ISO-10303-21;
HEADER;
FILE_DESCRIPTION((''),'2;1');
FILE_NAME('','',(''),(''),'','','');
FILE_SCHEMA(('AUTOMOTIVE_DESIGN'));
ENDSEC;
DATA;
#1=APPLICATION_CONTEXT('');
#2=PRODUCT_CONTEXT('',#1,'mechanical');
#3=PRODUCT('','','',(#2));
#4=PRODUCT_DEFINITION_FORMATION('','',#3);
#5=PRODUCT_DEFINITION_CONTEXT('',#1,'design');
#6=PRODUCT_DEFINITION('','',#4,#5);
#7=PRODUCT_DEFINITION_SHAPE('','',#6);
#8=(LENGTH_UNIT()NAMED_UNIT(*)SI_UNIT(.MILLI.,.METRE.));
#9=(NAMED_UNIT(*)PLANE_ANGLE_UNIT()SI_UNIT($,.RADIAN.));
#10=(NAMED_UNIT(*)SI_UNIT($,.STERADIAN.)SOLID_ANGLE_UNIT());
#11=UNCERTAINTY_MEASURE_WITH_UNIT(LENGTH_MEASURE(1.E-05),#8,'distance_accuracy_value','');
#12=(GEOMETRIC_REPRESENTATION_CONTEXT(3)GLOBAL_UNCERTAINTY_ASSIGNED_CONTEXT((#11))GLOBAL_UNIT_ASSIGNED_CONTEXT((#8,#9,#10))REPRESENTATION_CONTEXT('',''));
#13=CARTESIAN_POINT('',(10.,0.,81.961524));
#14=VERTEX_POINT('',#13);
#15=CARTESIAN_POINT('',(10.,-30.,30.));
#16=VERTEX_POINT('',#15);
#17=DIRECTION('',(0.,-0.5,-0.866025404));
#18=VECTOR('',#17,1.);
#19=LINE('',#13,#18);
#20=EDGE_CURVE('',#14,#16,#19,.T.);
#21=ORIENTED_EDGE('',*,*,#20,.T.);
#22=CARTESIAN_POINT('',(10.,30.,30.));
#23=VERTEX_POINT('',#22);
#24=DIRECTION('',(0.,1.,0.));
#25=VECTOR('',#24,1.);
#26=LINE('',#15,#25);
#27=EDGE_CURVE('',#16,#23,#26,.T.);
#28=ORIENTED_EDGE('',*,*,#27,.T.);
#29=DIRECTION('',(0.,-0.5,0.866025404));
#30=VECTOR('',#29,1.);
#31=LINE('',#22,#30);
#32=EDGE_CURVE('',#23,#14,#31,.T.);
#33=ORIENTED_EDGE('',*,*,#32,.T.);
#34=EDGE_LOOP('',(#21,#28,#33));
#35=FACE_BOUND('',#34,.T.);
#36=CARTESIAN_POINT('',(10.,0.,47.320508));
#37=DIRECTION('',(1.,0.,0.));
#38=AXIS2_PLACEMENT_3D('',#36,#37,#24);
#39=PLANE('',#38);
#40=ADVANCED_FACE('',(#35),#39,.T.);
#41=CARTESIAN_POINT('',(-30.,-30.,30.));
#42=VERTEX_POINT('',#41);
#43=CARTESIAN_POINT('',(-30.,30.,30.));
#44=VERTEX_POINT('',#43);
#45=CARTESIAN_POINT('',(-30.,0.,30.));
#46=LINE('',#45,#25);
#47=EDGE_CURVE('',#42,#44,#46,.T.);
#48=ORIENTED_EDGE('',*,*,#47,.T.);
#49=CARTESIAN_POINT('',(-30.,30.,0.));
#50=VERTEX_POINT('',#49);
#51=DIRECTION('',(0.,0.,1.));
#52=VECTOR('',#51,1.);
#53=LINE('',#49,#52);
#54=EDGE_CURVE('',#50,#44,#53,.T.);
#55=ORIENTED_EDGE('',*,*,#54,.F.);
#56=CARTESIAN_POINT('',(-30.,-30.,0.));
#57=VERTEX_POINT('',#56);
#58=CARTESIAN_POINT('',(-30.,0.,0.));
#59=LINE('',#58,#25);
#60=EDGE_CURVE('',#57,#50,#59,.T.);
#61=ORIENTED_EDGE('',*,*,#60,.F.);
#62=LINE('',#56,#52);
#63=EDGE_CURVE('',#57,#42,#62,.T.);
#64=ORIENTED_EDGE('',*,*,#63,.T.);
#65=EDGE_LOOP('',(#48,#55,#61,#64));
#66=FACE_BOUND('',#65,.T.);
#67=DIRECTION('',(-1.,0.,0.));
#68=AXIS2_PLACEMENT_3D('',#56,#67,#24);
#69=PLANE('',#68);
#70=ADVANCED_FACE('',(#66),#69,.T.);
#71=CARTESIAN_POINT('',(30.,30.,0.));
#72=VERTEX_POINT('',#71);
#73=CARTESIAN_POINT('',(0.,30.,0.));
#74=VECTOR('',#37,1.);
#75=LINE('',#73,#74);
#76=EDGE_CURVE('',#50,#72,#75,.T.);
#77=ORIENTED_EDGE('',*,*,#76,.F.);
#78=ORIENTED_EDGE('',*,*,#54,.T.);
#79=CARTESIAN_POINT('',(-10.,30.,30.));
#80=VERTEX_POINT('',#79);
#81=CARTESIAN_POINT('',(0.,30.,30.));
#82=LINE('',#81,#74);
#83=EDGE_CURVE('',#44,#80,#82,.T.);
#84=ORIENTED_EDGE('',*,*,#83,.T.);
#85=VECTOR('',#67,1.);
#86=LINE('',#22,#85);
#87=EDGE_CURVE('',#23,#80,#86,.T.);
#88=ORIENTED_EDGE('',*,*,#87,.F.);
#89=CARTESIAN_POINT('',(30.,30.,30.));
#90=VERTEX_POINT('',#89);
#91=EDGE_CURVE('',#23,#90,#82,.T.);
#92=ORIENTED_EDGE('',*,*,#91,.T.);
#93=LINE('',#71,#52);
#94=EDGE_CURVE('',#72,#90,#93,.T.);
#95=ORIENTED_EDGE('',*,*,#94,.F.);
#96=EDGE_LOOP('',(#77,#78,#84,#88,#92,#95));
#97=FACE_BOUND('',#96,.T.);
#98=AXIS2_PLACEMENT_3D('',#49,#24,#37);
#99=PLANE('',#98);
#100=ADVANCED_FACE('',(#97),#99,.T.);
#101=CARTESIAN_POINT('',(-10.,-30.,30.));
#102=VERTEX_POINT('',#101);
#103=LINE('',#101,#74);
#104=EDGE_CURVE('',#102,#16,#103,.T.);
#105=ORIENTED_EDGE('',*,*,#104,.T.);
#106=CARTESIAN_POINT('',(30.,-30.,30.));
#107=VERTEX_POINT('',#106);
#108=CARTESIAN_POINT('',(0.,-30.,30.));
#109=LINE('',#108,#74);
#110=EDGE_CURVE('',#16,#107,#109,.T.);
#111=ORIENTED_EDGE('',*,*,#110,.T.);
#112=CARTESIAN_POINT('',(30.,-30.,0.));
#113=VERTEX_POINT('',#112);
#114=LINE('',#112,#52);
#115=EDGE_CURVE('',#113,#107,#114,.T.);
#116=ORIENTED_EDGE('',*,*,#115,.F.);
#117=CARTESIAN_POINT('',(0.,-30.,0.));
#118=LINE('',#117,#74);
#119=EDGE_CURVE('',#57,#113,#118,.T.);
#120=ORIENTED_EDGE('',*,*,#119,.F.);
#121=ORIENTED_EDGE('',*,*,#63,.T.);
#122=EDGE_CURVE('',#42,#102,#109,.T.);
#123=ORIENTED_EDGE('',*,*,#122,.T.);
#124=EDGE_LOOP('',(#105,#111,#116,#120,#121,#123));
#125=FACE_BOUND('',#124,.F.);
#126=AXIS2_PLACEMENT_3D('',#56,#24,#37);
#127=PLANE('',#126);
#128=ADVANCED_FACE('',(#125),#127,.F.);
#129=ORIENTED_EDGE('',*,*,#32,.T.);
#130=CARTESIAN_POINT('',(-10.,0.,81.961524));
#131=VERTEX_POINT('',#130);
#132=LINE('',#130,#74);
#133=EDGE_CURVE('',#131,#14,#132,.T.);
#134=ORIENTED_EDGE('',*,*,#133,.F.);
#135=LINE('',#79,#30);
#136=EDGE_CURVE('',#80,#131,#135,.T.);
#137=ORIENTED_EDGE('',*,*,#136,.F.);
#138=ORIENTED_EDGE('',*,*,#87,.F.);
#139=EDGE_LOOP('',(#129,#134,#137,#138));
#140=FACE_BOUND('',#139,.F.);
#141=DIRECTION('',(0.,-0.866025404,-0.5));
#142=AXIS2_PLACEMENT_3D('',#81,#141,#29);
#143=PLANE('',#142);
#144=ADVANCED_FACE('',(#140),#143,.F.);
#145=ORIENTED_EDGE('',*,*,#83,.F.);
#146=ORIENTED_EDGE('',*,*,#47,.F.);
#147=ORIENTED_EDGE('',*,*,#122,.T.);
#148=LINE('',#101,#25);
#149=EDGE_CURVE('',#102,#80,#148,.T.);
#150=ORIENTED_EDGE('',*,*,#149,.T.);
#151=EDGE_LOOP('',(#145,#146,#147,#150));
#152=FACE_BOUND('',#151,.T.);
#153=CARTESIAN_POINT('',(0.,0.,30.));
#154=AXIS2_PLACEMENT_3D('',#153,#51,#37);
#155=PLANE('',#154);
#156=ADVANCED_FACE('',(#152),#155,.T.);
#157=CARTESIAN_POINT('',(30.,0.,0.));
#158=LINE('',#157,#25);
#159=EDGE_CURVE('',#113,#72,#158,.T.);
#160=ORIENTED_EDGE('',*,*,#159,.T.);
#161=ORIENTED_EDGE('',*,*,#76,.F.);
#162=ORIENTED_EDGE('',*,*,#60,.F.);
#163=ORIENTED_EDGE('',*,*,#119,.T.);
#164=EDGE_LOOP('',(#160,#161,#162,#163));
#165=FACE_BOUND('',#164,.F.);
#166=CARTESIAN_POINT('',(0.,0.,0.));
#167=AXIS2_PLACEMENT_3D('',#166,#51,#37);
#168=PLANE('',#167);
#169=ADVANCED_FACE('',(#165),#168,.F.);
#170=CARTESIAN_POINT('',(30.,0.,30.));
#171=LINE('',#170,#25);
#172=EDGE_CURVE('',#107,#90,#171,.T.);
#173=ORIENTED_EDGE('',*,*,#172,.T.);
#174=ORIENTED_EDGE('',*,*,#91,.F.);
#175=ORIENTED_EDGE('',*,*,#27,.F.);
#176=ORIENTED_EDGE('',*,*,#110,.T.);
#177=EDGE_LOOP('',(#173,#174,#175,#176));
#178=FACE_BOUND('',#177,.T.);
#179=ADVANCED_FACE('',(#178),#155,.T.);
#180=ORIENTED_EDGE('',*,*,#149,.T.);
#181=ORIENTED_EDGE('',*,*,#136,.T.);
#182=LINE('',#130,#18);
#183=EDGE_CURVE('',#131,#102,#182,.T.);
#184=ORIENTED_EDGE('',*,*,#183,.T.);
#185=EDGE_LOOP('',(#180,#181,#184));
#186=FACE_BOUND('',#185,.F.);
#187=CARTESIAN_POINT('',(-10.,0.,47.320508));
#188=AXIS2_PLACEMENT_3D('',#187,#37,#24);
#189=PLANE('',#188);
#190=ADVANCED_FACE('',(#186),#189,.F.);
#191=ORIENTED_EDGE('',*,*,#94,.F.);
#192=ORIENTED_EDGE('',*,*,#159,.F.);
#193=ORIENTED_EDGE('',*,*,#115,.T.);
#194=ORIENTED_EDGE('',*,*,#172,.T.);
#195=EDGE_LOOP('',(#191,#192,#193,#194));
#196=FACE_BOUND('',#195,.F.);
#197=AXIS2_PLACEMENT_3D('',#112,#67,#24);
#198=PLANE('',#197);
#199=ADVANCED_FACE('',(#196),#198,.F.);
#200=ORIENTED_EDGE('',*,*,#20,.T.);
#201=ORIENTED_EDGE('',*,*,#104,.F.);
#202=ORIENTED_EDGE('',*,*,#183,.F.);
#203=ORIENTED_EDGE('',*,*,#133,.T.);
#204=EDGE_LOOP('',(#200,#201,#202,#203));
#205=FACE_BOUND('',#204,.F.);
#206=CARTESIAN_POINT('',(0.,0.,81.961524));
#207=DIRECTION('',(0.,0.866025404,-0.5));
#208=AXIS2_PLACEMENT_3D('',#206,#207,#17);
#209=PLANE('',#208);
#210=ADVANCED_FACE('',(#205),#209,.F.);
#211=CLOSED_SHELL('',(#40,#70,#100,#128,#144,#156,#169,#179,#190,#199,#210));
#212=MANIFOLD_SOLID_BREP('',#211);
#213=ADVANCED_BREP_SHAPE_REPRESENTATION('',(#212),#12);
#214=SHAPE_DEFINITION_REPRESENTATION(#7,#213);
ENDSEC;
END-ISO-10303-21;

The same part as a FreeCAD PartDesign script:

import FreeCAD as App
import Part
import Sketcher
Q = App.Units.Quantity


def add_polygon(sketch, points):
    """Adds a closed chain of lines whose ends are joined by coincident constraints."""
    first, n = sketch.GeometryCount, len(points)
    for a, b in zip(points, points[1:] + points[:1]):
        sketch.addGeometry(Part.LineSegment(App.Vector(*a, 0), App.Vector(*b, 0)), False)
    for i in range(n):
        sketch.addConstraint(Sketcher.Constraint("Coincident", first + i, 2, first + (i + 1) % n, 1))

doc = App.newDocument("Part")
body = doc.addObject("PartDesign::Body", "Body")

sketch1 = doc.addObject("Sketcher::SketchObject", "Sketch")
body.addObject(sketch1)
sketch1.AttachmentSupport = (doc.XY_Plane, [""])
sketch1.MapMode = "FlatFace"
add_polygon(sketch1, [(-30, 30), (-30, -30), (30, -30), (30, 30)])
sketch1.addConstraint(Sketcher.Constraint("Vertical", 0))
sketch1.addConstraint(Sketcher.Constraint("Horizontal", 1))
sketch1.addConstraint(Sketcher.Constraint("Vertical", 2))
sketch1.addConstraint(Sketcher.Constraint("Horizontal", 3))
sketch1.addConstraint(Sketcher.Constraint("Symmetric", 0, 2, 2, 2, -1, 1))
sketch1.addConstraint(Sketcher.Constraint("Equal", 3, 0))
sketch1.addConstraint(Sketcher.Constraint("DistanceX", 1, 1, 1, 2, 60.0))
pad1 = doc.addObject("PartDesign::Pad", "Pad")
body.addObject(pad1)
pad1.Profile = sketch1
pad1.Length = 30

sketch2 = doc.addObject("Sketcher::SketchObject", "Sketch001")
body.addObject(sketch2)
sketch2.AttachmentSupport = (doc.YZ_Plane, [""])
sketch2.MapMode = "FlatFace"
add_polygon(sketch2, [(-30, 30), (30, 30), (0, 81.961524)])
sketch2.addConstraint(Sketcher.Constraint("Horizontal", 0))
sketch2.addConstraint(Sketcher.Constraint("PointOnObject", 1, 2, -2))
sketch2.addConstraint(Sketcher.Constraint("Equal", 1, 2))
sketch2.addConstraint(Sketcher.Constraint("DistanceX", 0, 1, 0, 2, 60.0))
sketch2.addConstraint(Sketcher.Constraint("Angle", 1, Q("120 deg")))
sketch2.addConstraint(Sketcher.Constraint("DistanceY", -1, 1, 0, 2, 30.0))
pad2 = doc.addObject("PartDesign::Pad", "Pad001")
body.addObject(pad2)
pad2.Profile = sketch2
pad2.Type = "TwoLengths"
pad2.Length = 10
pad2.Length2 = 10
pad2.Reversed = True

doc.recompute()
